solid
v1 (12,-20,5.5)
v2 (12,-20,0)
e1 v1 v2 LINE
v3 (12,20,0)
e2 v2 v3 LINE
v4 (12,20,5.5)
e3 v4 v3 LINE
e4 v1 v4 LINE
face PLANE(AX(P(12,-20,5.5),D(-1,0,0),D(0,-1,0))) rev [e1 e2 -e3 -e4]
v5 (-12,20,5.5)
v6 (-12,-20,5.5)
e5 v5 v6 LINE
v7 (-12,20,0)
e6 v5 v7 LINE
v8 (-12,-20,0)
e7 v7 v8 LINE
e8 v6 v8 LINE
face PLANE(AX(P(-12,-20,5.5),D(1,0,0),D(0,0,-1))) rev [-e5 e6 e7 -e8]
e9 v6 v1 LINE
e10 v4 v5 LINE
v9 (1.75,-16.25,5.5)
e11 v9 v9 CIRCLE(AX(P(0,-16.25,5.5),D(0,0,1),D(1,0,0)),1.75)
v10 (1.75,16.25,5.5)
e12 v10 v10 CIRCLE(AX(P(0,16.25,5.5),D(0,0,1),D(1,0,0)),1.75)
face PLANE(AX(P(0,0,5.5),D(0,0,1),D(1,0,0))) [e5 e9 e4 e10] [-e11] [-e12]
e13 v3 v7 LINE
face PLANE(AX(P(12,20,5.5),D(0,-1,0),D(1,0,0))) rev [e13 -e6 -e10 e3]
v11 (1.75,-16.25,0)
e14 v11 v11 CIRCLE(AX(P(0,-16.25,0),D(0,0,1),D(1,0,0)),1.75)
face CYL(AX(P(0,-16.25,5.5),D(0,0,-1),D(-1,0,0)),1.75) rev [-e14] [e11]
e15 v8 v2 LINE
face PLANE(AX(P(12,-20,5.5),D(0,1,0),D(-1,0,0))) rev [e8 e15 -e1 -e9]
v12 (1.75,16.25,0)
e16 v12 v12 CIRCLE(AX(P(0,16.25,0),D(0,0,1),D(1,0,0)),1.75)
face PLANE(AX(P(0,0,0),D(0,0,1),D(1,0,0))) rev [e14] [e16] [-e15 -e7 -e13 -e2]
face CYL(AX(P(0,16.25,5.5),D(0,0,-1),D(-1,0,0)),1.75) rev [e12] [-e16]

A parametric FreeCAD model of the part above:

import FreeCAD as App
import Part
import Sketcher
from FreeCAD import Vector
Q = App.Units.Quantity

doc = App.newDocument("Part")
body = doc.addObject("PartDesign::Body", "Body")

# Sketch on XY plane
sketch1 = body.newObject("Sketcher::SketchObject", "Sketch")
sketch1.AttachmentSupport = (doc.getObject("XY_Plane"), [""])
sketch1.MapMode = "FlatFace"
sketch1.addGeometry(Part.LineSegment(Vector(-12, 20, 0), Vector(-12, -20, 0)), False)
sketch1.addGeometry(Part.LineSegment(Vector(-12, -20, 0), Vector(12, -20, 0)), False)
sketch1.addGeometry(Part.LineSegment(Vector(12, -20, 0), Vector(12, 20, 0)), False)
sketch1.addGeometry(Part.LineSegment(Vector(12, 20, 0), Vector(-12, 20, 0)), False)
sketch1.addGeometry(Part.Circle(Vector(0, -16.2, 0), Vector(0, 0, 1), 1.8), False)
sketch1.addGeometry(Part.Circle(Vector(0, 16.2, 0), Vector(0, 0, 1), 1.8), False)
sketch1.addConstraint(Sketcher.Constraint("Coincident", 0, 2, 1, 1))
sketch1.addConstraint(Sketcher.Constraint("Coincident", 1, 2, 2, 1))
sketch1.addConstraint(Sketcher.Constraint("Coincident", 2, 2, 3, 1))
sketch1.addConstraint(Sketcher.Constraint("Coincident", 3, 2, 0, 1))
sketch1.addConstraint(Sketcher.Constraint("Vertical", 0))
sketch1.addConstraint(Sketcher.Constraint("Horizontal", 1))
sketch1.addConstraint(Sketcher.Constraint("Vertical", 2))
sketch1.addConstraint(Sketcher.Constraint("Horizontal", 3))
sketch1.addConstraint(Sketcher.Constraint("Equal", 4, 5))
sketch1.addConstraint(Sketcher.Constraint("Symmetric", 4, 3, 5, 3, -1, 1))
sketch1.addConstraint(Sketcher.Constraint("Symmetric", 0, 2, 2, 2, -1, 1))
sketch1.addConstraint(Sketcher.Constraint("PointOnObject", 4, 3, -2))
sketch1.addConstraint(Sketcher.Constraint("Diameter", 4, Q("3.5 mm")))
sketch1.addConstraint(Sketcher.Constraint("DistanceX", 1, 1, 1, 2, Q("24 mm")))
sketch1.addConstraint(Sketcher.Constraint("DistanceY", 0, 2, 0, 1, Q("40 mm")))
sketch1.addConstraint(Sketcher.Constraint("DistanceY", 4, 3, 5, 3, Q("32.5 mm")))
pad1 = body.newObject("PartDesign::Pad", "Pad")
pad1.Profile = sketch1
pad1.Length = 5.5

doc.recompute()
